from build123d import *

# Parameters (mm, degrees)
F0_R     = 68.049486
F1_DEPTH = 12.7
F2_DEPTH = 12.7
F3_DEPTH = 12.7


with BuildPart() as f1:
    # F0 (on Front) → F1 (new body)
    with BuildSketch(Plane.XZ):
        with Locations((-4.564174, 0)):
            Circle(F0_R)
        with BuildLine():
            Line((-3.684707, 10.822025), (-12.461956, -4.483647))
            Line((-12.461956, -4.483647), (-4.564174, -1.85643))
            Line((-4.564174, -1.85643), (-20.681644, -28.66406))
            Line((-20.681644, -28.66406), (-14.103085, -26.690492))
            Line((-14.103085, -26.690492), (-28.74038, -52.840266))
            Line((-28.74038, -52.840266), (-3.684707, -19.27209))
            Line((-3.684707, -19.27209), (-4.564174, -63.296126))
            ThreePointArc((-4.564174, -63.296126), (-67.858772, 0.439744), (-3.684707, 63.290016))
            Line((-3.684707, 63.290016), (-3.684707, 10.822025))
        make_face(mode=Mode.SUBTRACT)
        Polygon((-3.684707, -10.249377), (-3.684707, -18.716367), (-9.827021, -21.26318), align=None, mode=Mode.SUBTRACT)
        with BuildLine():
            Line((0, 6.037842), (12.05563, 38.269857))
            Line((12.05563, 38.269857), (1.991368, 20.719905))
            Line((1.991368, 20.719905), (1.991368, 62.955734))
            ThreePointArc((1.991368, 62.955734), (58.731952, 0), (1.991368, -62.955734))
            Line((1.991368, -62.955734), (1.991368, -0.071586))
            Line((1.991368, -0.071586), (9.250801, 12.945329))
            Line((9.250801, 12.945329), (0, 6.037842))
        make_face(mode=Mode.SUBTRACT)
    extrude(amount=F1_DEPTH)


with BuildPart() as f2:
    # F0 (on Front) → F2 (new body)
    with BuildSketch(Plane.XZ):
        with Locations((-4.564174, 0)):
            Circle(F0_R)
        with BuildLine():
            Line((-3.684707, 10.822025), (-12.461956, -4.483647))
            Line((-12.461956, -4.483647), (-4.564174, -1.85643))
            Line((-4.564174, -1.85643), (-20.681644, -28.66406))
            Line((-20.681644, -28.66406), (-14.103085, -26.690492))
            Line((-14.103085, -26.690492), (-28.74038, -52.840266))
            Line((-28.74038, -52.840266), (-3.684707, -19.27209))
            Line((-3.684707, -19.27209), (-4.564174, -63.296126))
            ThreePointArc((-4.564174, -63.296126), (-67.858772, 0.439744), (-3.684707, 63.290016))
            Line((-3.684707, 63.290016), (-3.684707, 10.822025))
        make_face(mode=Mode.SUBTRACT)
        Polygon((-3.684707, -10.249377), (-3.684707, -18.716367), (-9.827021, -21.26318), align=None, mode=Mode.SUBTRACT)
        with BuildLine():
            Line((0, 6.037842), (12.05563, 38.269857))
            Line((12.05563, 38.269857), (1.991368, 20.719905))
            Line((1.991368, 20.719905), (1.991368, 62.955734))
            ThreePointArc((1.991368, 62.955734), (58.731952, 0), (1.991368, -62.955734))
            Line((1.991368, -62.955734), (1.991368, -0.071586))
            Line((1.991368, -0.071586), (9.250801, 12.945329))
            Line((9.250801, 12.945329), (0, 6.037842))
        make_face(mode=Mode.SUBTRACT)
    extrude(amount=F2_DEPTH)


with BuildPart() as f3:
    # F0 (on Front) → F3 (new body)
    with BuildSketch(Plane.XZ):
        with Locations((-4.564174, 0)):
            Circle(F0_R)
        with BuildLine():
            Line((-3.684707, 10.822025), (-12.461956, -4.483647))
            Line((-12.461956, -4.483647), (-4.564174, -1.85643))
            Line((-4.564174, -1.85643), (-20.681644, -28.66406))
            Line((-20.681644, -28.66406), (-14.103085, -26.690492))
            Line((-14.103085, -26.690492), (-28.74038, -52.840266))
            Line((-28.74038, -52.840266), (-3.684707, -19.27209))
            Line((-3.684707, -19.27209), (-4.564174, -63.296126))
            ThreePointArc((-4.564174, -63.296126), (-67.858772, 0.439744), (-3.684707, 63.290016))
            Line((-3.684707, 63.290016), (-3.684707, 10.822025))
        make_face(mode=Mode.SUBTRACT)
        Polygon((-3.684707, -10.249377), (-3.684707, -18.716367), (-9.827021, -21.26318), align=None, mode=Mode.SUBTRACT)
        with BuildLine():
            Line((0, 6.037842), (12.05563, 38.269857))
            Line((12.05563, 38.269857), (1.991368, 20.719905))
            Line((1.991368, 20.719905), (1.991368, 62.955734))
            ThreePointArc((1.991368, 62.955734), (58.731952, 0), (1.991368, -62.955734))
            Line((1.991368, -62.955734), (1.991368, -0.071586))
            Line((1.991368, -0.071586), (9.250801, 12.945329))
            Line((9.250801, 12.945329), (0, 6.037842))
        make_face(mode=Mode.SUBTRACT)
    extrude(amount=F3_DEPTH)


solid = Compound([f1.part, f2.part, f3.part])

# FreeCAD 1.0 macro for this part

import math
import FreeCAD as App
import Part
import Sketcher
from FreeCAD import Vector
Q = App.Units.Quantity

doc = App.newDocument("Part")
body = doc.addObject("PartDesign::Body", "Body")

# Sketch on XZ plane
sketch1 = body.newObject("Sketcher::SketchObject", "Sketch")
sketch1.AttachmentSupport = (doc.getObject("XZ_Plane"), [""])
sketch1.MapMode = "FlatFace"
sketch1.addGeometry(Part.Circle(Vector(-4.564174, 0, 0), Vector(0, 0, 1), 68.049486), False)
sketch1.addGeometry(Part.LineSegment(Vector(-9.827021, -21.26318, 0), Vector(-3.684707, -10.249377, 0)), False)
sketch1.addGeometry(Part.LineSegment(Vector(-3.684707, -10.249377, 0), Vector(-3.684707, -18.716367, 0)), False)
sketch1.addGeometry(Part.LineSegment(Vector(-3.684707, -18.716367, 0), Vector(-9.827021, -21.26318, 0)), False)
sketch1.addGeometry(Part.LineSegment(Vector(9.250801, 12.945329, 0), Vector(0, 6.037842, 0)), False)
sketch1.addGeometry(Part.LineSegment(Vector(0, 6.037842, 0), Vector(12.05563, 38.269857, 0)), False)
sketch1.addGeometry(Part.LineSegment(Vector(12.05563, 38.269857, 0), Vector(1.991368, 20.719905, 0)), False)
sketch1.addGeometry(Part.LineSegment(Vector(1.991368, 20.719905, 0), Vector(1.991368, 62.955734, 0)), False)
sketch1.addGeometry(Part.ArcOfCircle(Part.Circle(Vector(-4.564174, 0, 0), Vector(0, 0, 1), 63.296126), math.radians(-84.05525), math.radians(84.05525)), False)
sketch1.addGeometry(Part.LineSegment(Vector(1.991368, -62.955734, 0), Vector(1.991368, -0.071586, 0)), False)
sketch1.addGeometry(Part.LineSegment(Vector(1.991368, -0.071586, 0), Vector(9.250801, 12.945329, 0)), False)
sketch1.addGeometry(Part.LineSegment(Vector(-3.684707, 63.290016, 0), Vector(-3.684707, 10.822025, 0)), False)
sketch1.addGeometry(Part.LineSegment(Vector(-3.684707, 10.822025, 0), Vector(-12.461956, -4.483647, 0)), False)
sketch1.addGeometry(Part.LineSegment(Vector(-12.461956, -4.483647, 0), Vector(-4.564174, -1.85643, 0)), False)
sketch1.addGeometry(Part.LineSegment(Vector(-4.564174, -1.85643, 0), Vector(-20.681644, -28.66406, 0)), False)
sketch1.addGeometry(Part.LineSegment(Vector(-20.681644, -28.66406, 0), Vector(-14.103085, -26.690492, 0)), False)
sketch1.addGeometry(Part.LineSegment(Vector(-14.103085, -26.690492, 0), Vector(-28.74038, -52.840266, 0)), False)
sketch1.addGeometry(Part.LineSegment(Vector(-28.74038, -52.840266, 0), Vector(-3.684707, -19.27209, 0)), False)
sketch1.addGeometry(Part.LineSegment(Vector(-3.684707, -19.27209, 0), Vector(-4.564174, -63.296126, 0)), False)
sketch1.addGeometry(Part.ArcOfCircle(Part.Circle(Vector(-4.564173, 0, 0), Vector(0, 0, 1), 63.296126), math.radians(89.20388), math.radians(270)), False)
sketch1.addConstraint(Sketcher.Constraint("Coincident", 1, 2, 2, 1))
sketch1.addConstraint(Sketcher.Constraint("Coincident", 2, 2, 3, 1))
sketch1.addConstraint(Sketcher.Constraint("Coincident", 3, 2, 1, 1))
sketch1.addConstraint(Sketcher.Constraint("Coincident", 4, 2, 5, 1))
sketch1.addConstraint(Sketcher.Constraint("Coincident", 5, 2, 6, 1))
sketch1.addConstraint(Sketcher.Constraint("Coincident", 6, 2, 7, 1))
sketch1.addConstraint(Sketcher.Constraint("Coincident", 7, 2, 8, 2))
sketch1.addConstraint(Sketcher.Constraint("Coincident", 8, 1, 9, 1))
sketch1.addConstraint(Sketcher.Constraint("Coincident", 9, 2, 10, 1))
sketch1.addConstraint(Sketcher.Constraint("Coincident", 10, 2, 4, 1))
sketch1.addConstraint(Sketcher.Constraint("Coincident", 11, 2, 12, 1))
sketch1.addConstraint(Sketcher.Constraint("Coincident", 12, 2, 13, 1))
sketch1.addConstraint(Sketcher.Constraint("Coincident", 13, 2, 14, 1))
sketch1.addConstraint(Sketcher.Constraint("Coincident", 14, 2, 15, 1))
sketch1.addConstraint(Sketcher.Constraint("Coincident", 15, 2, 16, 1))
sketch1.addConstraint(Sketcher.Constraint("Coincident", 16, 2, 17, 1))
sketch1.addConstraint(Sketcher.Constraint("Coincident", 17, 2, 18, 1))
sketch1.addConstraint(Sketcher.Constraint("Coincident", 18, 2, 19, 2))
sketch1.addConstraint(Sketcher.Constraint("Coincident", 19, 1, 11, 1))
sketch1.addConstraint(Sketcher.Constraint("Vertical", 2))
sketch1.addConstraint(Sketcher.Constraint("Vertical", 7))
sketch1.addConstraint(Sketcher.Constraint("Vertical", 9))
sketch1.addConstraint(Sketcher.Constraint("Vertical", 11))
sketch1.addConstraint(Sketcher.Constraint("Coincident", 8, 3, 0, 3))
sketch1.addConstraint(Sketcher.Constraint("Coincident", 19, 3, 0, 3))
sketch1.addConstraint(Sketcher.Constraint("Equal", 8, 19))
sketch1.addConstraint(Sketcher.Constraint("Symmetric", 7, 2, 8, 1, -1))
sketch1.addConstraint(Sketcher.Constraint("PointOnObject", 4, 2, -2))
sketch1.addConstraint(Sketcher.Constraint("Parallel", 1, 10))
sketch1.addConstraint(Sketcher.Constraint("Parallel", 6, 12))
sketch1.addConstraint(Sketcher.Constraint("Vertical", 2, 2, 11, 2))
sketch1.addConstraint(Sketcher.Constraint("Vertical", 19, 3, 13, 2))
sketch1.addConstraint(Sketcher.Constraint("Vertical", 11, 2, 17, 2))
sketch1.addConstraint(Sketcher.Constraint("Vertical", 13, 2, 18, 2))
sketch1.addConstraint(Sketcher.Constraint("Diameter", 0, Q("136.098972 mm")))
sketch1.addConstraint(Sketcher.Constraint("Radius", 8, Q("63.296126 mm")))
sketch1.addConstraint(Sketcher.Constraint("Distance", 12, Q("17.6438 mm")))
sketch1.addConstraint(Sketcher.Constraint("DistanceY", 2, 2, 2, 1, Q("8.46699 mm")))
sketch1.addConstraint(Sketcher.Constraint("DistanceY", 7, 1, 7, 2, Q("42.235829 mm")))
sketch1.addConstraint(Sketcher.Constraint("DistanceY", 11, 2, 11, 1, Q("52.467991 mm")))
sketch1.addConstraint(Sketcher.Constraint("DistanceX", -1, 1, 10, 2, Q("9.250801 mm")))
sketch1.addConstraint(Sketcher.Constraint("DistanceY", 16, 2, 2, 2, Q("34.123899 mm")))
sketch1.addConstraint(Sketcher.Constraint("Distance", 3, Q("6.649382 mm")))
sketch1.addConstraint(Sketcher.Constraint("Distance", 4, Q("11.545159 mm")))
sketch1.addConstraint(Sketcher.Constraint("Distance", 6, Q("20.230922 mm")))
sketch1.addConstraint(Sketcher.Constraint("Distance", 18, Q("44.03282 mm")))
sketch1.addConstraint(Sketcher.Constraint("DistanceY", 9, 1, 9, 2, Q("62.884148 mm")))
sketch1.addConstraint(Sketcher.Constraint("DistanceX", 3, 2, -1, 1, Q("9.827021 mm")))
sketch1.addConstraint(Sketcher.Constraint("DistanceY", 3, 2, -1, 1, Q("21.26318 mm")))
sketch1.addConstraint(Sketcher.Constraint("DistanceX", -1, 1, 5, 2, Q("12.05563 mm")))
sketch1.addConstraint(Sketcher.Constraint("DistanceX", -1, 1, 8, 1, Q("1.991368 mm")))
sketch1.addConstraint(Sketcher.Constraint("DistanceY", -1, 1, 10, 2, Q("12.945329 mm")))
sketch1.addConstraint(Sketcher.Constraint("DistanceY", 13, 2, -1, 1, Q("1.85643 mm")))
sketch1.addConstraint(Sketcher.Constraint("DistanceY", 14, 2, -1, 1, Q("28.66406 mm")))
sketch1.addConstraint(Sketcher.Constraint("DistanceY", 15, 2, -1, 1, Q("26.690492 mm")))
sketch1.addConstraint(Sketcher.Constraint("DistanceX", 16, 2, -1, 1, Q("28.74038 mm")))
sketch1.addConstraint(Sketcher.Constraint("DistanceY", 17, 2, -1, 1, Q("19.27209 mm")))
sketch1.addConstraint(Sketcher.Constraint("DistanceX", 14, 2, 13, 2, Q("16.11747 mm")))
sketch1.addConstraint(Sketcher.Constraint("DistanceX", 14, 2, 15, 2, Q("6.578559 mm")))
pad1 = body.newObject("PartDesign::Pad", "Pad")
pad1.Profile = sketch1
pad1.Length = Q("0.5 in")
body2 = doc.addObject("PartDesign::Body", "Body001")

# Sketch on XZ plane
sketch2 = body2.newObject("Sketcher::SketchObject", "Sketch001")
sketch2.AttachmentSupport = (doc.getObject("XZ_Plane001"), [""])
sketch2.MapMode = "FlatFace"
sketch2.addGeometry(Part.Circle(Vector(-4.564174, 0, 0), Vector(0, 0, 1), 68.049486), False)
sketch2.addGeometry(Part.LineSegment(Vector(-9.827021, -21.26318, 0), Vector(-3.684707, -10.249377, 0)), False)
sketch2.addGeometry(Part.LineSegment(Vector(-3.684707, -10.249377, 0), Vector(-3.684707, -18.716367, 0)), False)
sketch2.addGeometry(Part.LineSegment(Vector(-3.684707, -18.716367, 0), Vector(-9.827021, -21.26318, 0)), False)
sketch2.addGeometry(Part.LineSegment(Vector(9.250801, 12.945329, 0), Vector(0, 6.037842, 0)), False)
sketch2.addGeometry(Part.LineSegment(Vector(0, 6.037842, 0), Vector(12.05563, 38.269857, 0)), False)
sketch2.addGeometry(Part.LineSegment(Vector(12.05563, 38.269857, 0), Vector(1.991368, 20.719905, 0)), False)
sketch2.addGeometry(Part.LineSegment(Vector(1.991368, 20.719905, 0), Vector(1.991368, 62.955734, 0)), False)
sketch2.addGeometry(Part.ArcOfCircle(Part.Circle(Vector(-4.564174, 0, 0), Vector(0, 0, 1), 63.296126), math.radians(-84.05525), math.radians(84.05525)), False)
sketch2.addGeometry(Part.LineSegment(Vector(1.991368, -62.955734, 0), Vector(1.991368, -0.071586, 0)), False)
sketch2.addGeometry(Part.LineSegment(Vector(1.991368, -0.071586, 0), Vector(9.250801, 12.945329, 0)), False)
sketch2.addGeometry(Part.LineSegment(Vector(-3.684707, 63.290016, 0), Vector(-3.684707, 10.822025, 0)), False)
sketch2.addGeometry(Part.LineSegment(Vector(-3.684707, 10.822025, 0), Vector(-12.461956, -4.483647, 0)), False)
sketch2.addGeometry(Part.LineSegment(Vector(-12.461956, -4.483647, 0), Vector(-4.564174, -1.85643, 0)), False)
sketch2.addGeometry(Part.LineSegment(Vector(-4.564174, -1.85643, 0), Vector(-20.681644, -28.66406, 0)), False)
sketch2.addGeometry(Part.LineSegment(Vector(-20.681644, -28.66406, 0), Vector(-14.103085, -26.690492, 0)), False)
sketch2.addGeometry(Part.LineSegment(Vector(-14.103085, -26.690492, 0), Vector(-28.74038, -52.840266, 0)), False)
sketch2.addGeometry(Part.LineSegment(Vector(-28.74038, -52.840266, 0), Vector(-3.684707, -19.27209, 0)), False)
sketch2.addGeometry(Part.LineSegment(Vector(-3.684707, -19.27209, 0), Vector(-4.564174, -63.296126, 0)), False)
sketch2.addGeometry(Part.ArcOfCircle(Part.Circle(Vector(-4.564173, 0, 0), Vector(0, 0, 1), 63.296126), math.radians(89.20388), math.radians(270)), False)
sketch2.addConstraint(Sketcher.Constraint("Coincident", 1, 2, 2, 1))
sketch2.addConstraint(Sketcher.Constraint("Coincident", 2, 2, 3, 1))
sketch2.addConstraint(Sketcher.Constraint("Coincident", 3, 2, 1, 1))
sketch2.addConstraint(Sketcher.Constraint("Coincident", 4, 2, 5, 1))
sketch2.addConstraint(Sketcher.Constraint("Coincident", 5, 2, 6, 1))
sketch2.addConstraint(Sketcher.Constraint("Coincident", 6, 2, 7, 1))
sketch2.addConstraint(Sketcher.Constraint("Coincident", 7, 2, 8, 2))
sketch2.addConstraint(Sketcher.Constraint("Coincident", 8, 1, 9, 1))
sketch2.addConstraint(Sketcher.Constraint("Coincident", 9, 2, 10, 1))
sketch2.addConstraint(Sketcher.Constraint("Coincident", 10, 2, 4, 1))
sketch2.addConstraint(Sketcher.Constraint("Coincident", 11, 2, 12, 1))
sketch2.addConstraint(Sketcher.Constraint("Coincident", 12, 2, 13, 1))
sketch2.addConstraint(Sketcher.Constraint("Coincident", 13, 2, 14, 1))
sketch2.addConstraint(Sketcher.Constraint("Coincident", 14, 2, 15, 1))
sketch2.addConstraint(Sketcher.Constraint("Coincident", 15, 2, 16, 1))
sketch2.addConstraint(Sketcher.Constraint("Coincident", 16, 2, 17, 1))
sketch2.addConstraint(Sketcher.Constraint("Coincident", 17, 2, 18, 1))
sketch2.addConstraint(Sketcher.Constraint("Coincident", 18, 2, 19, 2))
sketch2.addConstraint(Sketcher.Constraint("Coincident", 19, 1, 11, 1))
sketch2.addConstraint(Sketcher.Constraint("Vertical", 2))
sketch2.addConstraint(Sketcher.Constraint("Vertical", 7))
sketch2.addConstraint(Sketcher.Constraint("Vertical", 9))
sketch2.addConstraint(Sketcher.Constraint("Vertical", 11))
sketch2.addConstraint(Sketcher.Constraint("Coincident", 8, 3, 0, 3))
sketch2.addConstraint(Sketcher.Constraint("Coincident", 19, 3, 0, 3))
sketch2.addConstraint(Sketcher.Constraint("Equal", 8, 19))
sketch2.addConstraint(Sketcher.Constraint("Symmetric", 7, 2, 8, 1, -1))
sketch2.addConstraint(Sketcher.Constraint("PointOnObject", 4, 2, -2))
sketch2.addConstraint(Sketcher.Constraint("Parallel", 1, 10))
sketch2.addConstraint(Sketcher.Constraint("Parallel", 6, 12))
sketch2.addConstraint(Sketcher.Constraint("Vertical", 2, 2, 11, 2))
sketch2.addConstraint(Sketcher.Constraint("Vertical", 19, 3, 13, 2))
sketch2.addConstraint(Sketcher.Constraint("Vertical", 11, 2, 17, 2))
sketch2.addConstraint(Sketcher.Constraint("Vertical", 13, 2, 18, 2))
sketch2.addConstraint(Sketcher.Constraint("Diameter", 0, Q("136.098972 mm")))
sketch2.addConstraint(Sketcher.Constraint("Radius", 8, Q("63.296126 mm")))
sketch2.addConstraint(Sketcher.Constraint("Distance", 12, Q("17.6438 mm")))
sketch2.addConstraint(Sketcher.Constraint("DistanceY", 2, 2, 2, 1, Q("8.46699 mm")))
sketch2.addConstraint(Sketcher.Constraint("DistanceY", 7, 1, 7, 2, Q("42.235829 mm")))
sketch2.addConstraint(Sketcher.Constraint("DistanceY", 11, 2, 11, 1, Q("52.467991 mm")))
sketch2.addConstraint(Sketcher.Constraint("DistanceX", -1, 1, 10, 2, Q("9.250801 mm")))
sketch2.addConstraint(Sketcher.Constraint("DistanceY", 16, 2, 2, 2, Q("34.123899 mm")))
sketch2.addConstraint(Sketcher.Constraint("Distance", 3, Q("6.649382 mm")))
sketch2.addConstraint(Sketcher.Constraint("Distance", 4, Q("11.545159 mm")))
sketch2.addConstraint(Sketcher.Constraint("Distance", 6, Q("20.230922 mm")))
sketch2.addConstraint(Sketcher.Constraint("Distance", 18, Q("44.03282 mm")))
sketch2.addConstraint(Sketcher.Constraint("DistanceY", 9, 1, 9, 2, Q("62.884148 mm")))
sketch2.addConstraint(Sketcher.Constraint("DistanceX", 3, 2, -1, 1, Q("9.827021 mm")))
sketch2.addConstraint(Sketcher.Constraint("DistanceY", 3, 2, -1, 1, Q("21.26318 mm")))
sketch2.addConstraint(Sketcher.Constraint("DistanceX", -1, 1, 5, 2, Q("12.05563 mm")))
sketch2.addConstraint(Sketcher.Constraint("DistanceX", -1, 1, 8, 1, Q("1.991368 mm")))
sketch2.addConstraint(Sketcher.Constraint("DistanceY", -1, 1, 10, 2, Q("12.945329 mm")))
sketch2.addConstraint(Sketcher.Constraint("DistanceY", 13, 2, -1, 1, Q("1.85643 mm")))
sketch2.addConstraint(Sketcher.Constraint("DistanceY", 14, 2, -1, 1, Q("28.66406 mm")))
sketch2.addConstraint(Sketcher.Constraint("DistanceY", 15, 2, -1, 1, Q("26.690492 mm")))
sketch2.addConstraint(Sketcher.Constraint("DistanceX", 16, 2, -1, 1, Q("28.74038 mm")))
sketch2.addConstraint(Sketcher.Constraint("DistanceY", 17, 2, -1, 1, Q("19.27209 mm")))
sketch2.addConstraint(Sketcher.Constraint("DistanceX", 14, 2, 13, 2, Q("16.11747 mm")))
sketch2.addConstraint(Sketcher.Constraint("DistanceX", 14, 2, 15, 2, Q("6.578559 mm")))
pad2 = body2.newObject("PartDesign::Pad", "Pad001")
pad2.Profile = sketch2
pad2.Length = Q("0.5 in")
body3 = doc.addObject("PartDesign::Body", "Body002")

# Sketch on XZ plane
sketch3 = body3.newObject("Sketcher::SketchObject", "Sketch002")
sketch3.AttachmentSupport = (doc.getObject("XZ_Plane002"), [""])
sketch3.MapMode = "FlatFace"
sketch3.addGeometry(Part.Circle(Vector(-4.564174, 0, 0), Vector(0, 0, 1), 68.049486), False)
sketch3.addGeometry(Part.LineSegment(Vector(-9.827021, -21.26318, 0), Vector(-3.684707, -10.249377, 0)), False)
sketch3.addGeometry(Part.LineSegment(Vector(-3.684707, -10.249377, 0), Vector(-3.684707, -18.716367, 0)), False)
sketch3.addGeometry(Part.LineSegment(Vector(-3.684707, -18.716367, 0), Vector(-9.827021, -21.26318, 0)), False)
sketch3.addGeometry(Part.LineSegment(Vector(9.250801, 12.945329, 0), Vector(0, 6.037842, 0)), False)
sketch3.addGeometry(Part.LineSegment(Vector(0, 6.037842, 0), Vector(12.05563, 38.269857, 0)), False)
sketch3.addGeometry(Part.LineSegment(Vector(12.05563, 38.269857, 0), Vector(1.991368, 20.719905, 0)), False)
sketch3.addGeometry(Part.LineSegment(Vector(1.991368, 20.719905, 0), Vector(1.991368, 62.955734, 0)), False)
sketch3.addGeometry(Part.ArcOfCircle(Part.Circle(Vector(-4.564174, 0, 0), Vector(0, 0, 1), 63.296126), math.radians(-84.05525), math.radians(84.05525)), False)
sketch3.addGeometry(Part.LineSegment(Vector(1.991368, -62.955734, 0), Vector(1.991368, -0.071586, 0)), False)
sketch3.addGeometry(Part.LineSegment(Vector(1.991368, -0.071586, 0), Vector(9.250801, 12.945329, 0)), False)
sketch3.addGeometry(Part.LineSegment(Vector(-3.684707, 63.290016, 0), Vector(-3.684707, 10.822025, 0)), False)
sketch3.addGeometry(Part.LineSegment(Vector(-3.684707, 10.822025, 0), Vector(-12.461956, -4.483647, 0)), False)
sketch3.addGeometry(Part.LineSegment(Vector(-12.461956, -4.483647, 0), Vector(-4.564174, -1.85643, 0)), False)
sketch3.addGeometry(Part.LineSegment(Vector(-4.564174, -1.85643, 0), Vector(-20.681644, -28.66406, 0)), False)
sketch3.addGeometry(Part.LineSegment(Vector(-20.681644, -28.66406, 0), Vector(-14.103085, -26.690492, 0)), False)
sketch3.addGeometry(Part.LineSegment(Vector(-14.103085, -26.690492, 0), Vector(-28.74038, -52.840266, 0)), False)
sketch3.addGeometry(Part.LineSegment(Vector(-28.74038, -52.840266, 0), Vector(-3.684707, -19.27209, 0)), False)
sketch3.addGeometry(Part.LineSegment(Vector(-3.684707, -19.27209, 0), Vector(-4.564174, -63.296126, 0)), False)
sketch3.addGeometry(Part.ArcOfCircle(Part.Circle(Vector(-4.564173, 0, 0), Vector(0, 0, 1), 63.296126), math.radians(89.20388), math.radians(270)), False)
sketch3.addConstraint(Sketcher.Constraint("Coincident", 1, 2, 2, 1))
sketch3.addConstraint(Sketcher.Constraint("Coincident", 2, 2, 3, 1))
sketch3.addConstraint(Sketcher.Constraint("Coincident", 3, 2, 1, 1))
sketch3.addConstraint(Sketcher.Constraint("Coincident", 4, 2, 5, 1))
sketch3.addConstraint(Sketcher.Constraint("Coincident", 5, 2, 6, 1))
sketch3.addConstraint(Sketcher.Constraint("Coincident", 6, 2, 7, 1))
sketch3.addConstraint(Sketcher.Constraint("Coincident", 7, 2, 8, 2))
sketch3.addConstraint(Sketcher.Constraint("Coincident", 8, 1, 9, 1))
sketch3.addConstraint(Sketcher.Constraint("Coincident", 9, 2, 10, 1))
sketch3.addConstraint(Sketcher.Constraint("Coincident", 10, 2, 4, 1))
sketch3.addConstraint(Sketcher.Constraint("Coincident", 11, 2, 12, 1))
sketch3.addConstraint(Sketcher.Constraint("Coincident", 12, 2, 13, 1))
sketch3.addConstraint(Sketcher.Constraint("Coincident", 13, 2, 14, 1))
sketch3.addConstraint(Sketcher.Constraint("Coincident", 14, 2, 15, 1))
sketch3.addConstraint(Sketcher.Constraint("Coincident", 15, 2, 16, 1))
sketch3.addConstraint(Sketcher.Constraint("Coincident", 16, 2, 17, 1))
sketch3.addConstraint(Sketcher.Constraint("Coincident", 17, 2, 18, 1))
sketch3.addConstraint(Sketcher.Constraint("Coincident", 18, 2, 19, 2))
sketch3.addConstraint(Sketcher.Constraint("Coincident", 19, 1, 11, 1))
sketch3.addConstraint(Sketcher.Constraint("Vertical", 2))
sketch3.addConstraint(Sketcher.Constraint("Vertical", 7))
sketch3.addConstraint(Sketcher.Constraint("Vertical", 9))
sketch3.addConstraint(Sketcher.Constraint("Vertical", 11))
sketch3.addConstraint(Sketcher.Constraint("Coincident", 8, 3, 0, 3))
sketch3.addConstraint(Sketcher.Constraint("Coincident", 19, 3, 0, 3))
sketch3.addConstraint(Sketcher.Constraint("Equal", 8, 19))
sketch3.addConstraint(Sketcher.Constraint("Symmetric", 7, 2, 8, 1, -1))
sketch3.addConstraint(Sketcher.Constraint("PointOnObject", 4, 2, -2))
sketch3.addConstraint(Sketcher.Constraint("Parallel", 1, 10))
sketch3.addConstraint(Sketcher.Constraint("Parallel", 6, 12))
sketch3.addConstraint(Sketcher.Constraint("Vertical", 2, 2, 11, 2))
sketch3.addConstraint(Sketcher.Constraint("Vertical", 19, 3, 13, 2))
sketch3.addConstraint(Sketcher.Constraint("Vertical", 11, 2, 17, 2))
sketch3.addConstraint(Sketcher.Constraint("Vertical", 13, 2, 18, 2))
sketch3.addConstraint(Sketcher.Constraint("Diameter", 0, Q("136.098972 mm")))
sketch3.addConstraint(Sketcher.Constraint("Radius", 8, Q("63.296126 mm")))
sketch3.addConstraint(Sketcher.Constraint("Distance", 12, Q("17.6438 mm")))
sketch3.addConstraint(Sketcher.Constraint("DistanceY", 2, 2, 2, 1, Q("8.46699 mm")))
sketch3.addConstraint(Sketcher.Constraint("DistanceY", 7, 1, 7, 2, Q("42.235829 mm")))
sketch3.addConstraint(Sketcher.Constraint("DistanceY", 11, 2, 11, 1, Q("52.467991 mm")))
sketch3.addConstraint(Sketcher.Constraint("DistanceX", -1, 1, 10, 2, Q("9.250801 mm")))
sketch3.addConstraint(Sketcher.Constraint("DistanceY", 16, 2, 2, 2, Q("34.123899 mm")))
sketch3.addConstraint(Sketcher.Constraint("Distance", 3, Q("6.649382 mm")))
sketch3.addConstraint(Sketcher.Constraint("Distance", 4, Q("11.545159 mm")))
sketch3.addConstraint(Sketcher.Constraint("Distance", 6, Q("20.230922 mm")))
sketch3.addConstraint(Sketcher.Constraint("Distance", 18, Q("44.03282 mm")))
sketch3.addConstraint(Sketcher.Constraint("DistanceY", 9, 1, 9, 2, Q("62.884148 mm")))
sketch3.addConstraint(Sketcher.Constraint("DistanceX", 3, 2, -1, 1, Q("9.827021 mm")))
sketch3.addConstraint(Sketcher.Constraint("DistanceY", 3, 2, -1, 1, Q("21.26318 mm")))
sketch3.addConstraint(Sketcher.Constraint("DistanceX", -1, 1, 5, 2, Q("12.05563 mm")))
sketch3.addConstraint(Sketcher.Constraint("DistanceX", -1, 1, 8, 1, Q("1.991368 mm")))
sketch3.addConstraint(Sketcher.Constraint("DistanceY", -1, 1, 10, 2, Q("12.945329 mm")))
sketch3.addConstraint(Sketcher.Constraint("DistanceY", 13, 2, -1, 1, Q("1.85643 mm")))
sketch3.addConstraint(Sketcher.Constraint("DistanceY", 14, 2, -1, 1, Q("28.66406 mm")))
sketch3.addConstraint(Sketcher.Constraint("DistanceY", 15, 2, -1, 1, Q("26.690492 mm")))
sketch3.addConstraint(Sketcher.Constraint("DistanceX", 16, 2, -1, 1, Q("28.74038 mm")))
sketch3.addConstraint(Sketcher.Constraint("DistanceY", 17, 2, -1, 1, Q("19.27209 mm")))
sketch3.addConstraint(Sketcher.Constraint("DistanceX", 14, 2, 13, 2, Q("16.11747 mm")))
sketch3.addConstraint(Sketcher.Constraint("DistanceX", 14, 2, 15, 2, Q("6.578559 mm")))
pad3 = body3.newObject("PartDesign::Pad", "Pad002")
pad3.Profile = sketch3
pad3.Length = Q("0.5 in")

doc.recompute()
